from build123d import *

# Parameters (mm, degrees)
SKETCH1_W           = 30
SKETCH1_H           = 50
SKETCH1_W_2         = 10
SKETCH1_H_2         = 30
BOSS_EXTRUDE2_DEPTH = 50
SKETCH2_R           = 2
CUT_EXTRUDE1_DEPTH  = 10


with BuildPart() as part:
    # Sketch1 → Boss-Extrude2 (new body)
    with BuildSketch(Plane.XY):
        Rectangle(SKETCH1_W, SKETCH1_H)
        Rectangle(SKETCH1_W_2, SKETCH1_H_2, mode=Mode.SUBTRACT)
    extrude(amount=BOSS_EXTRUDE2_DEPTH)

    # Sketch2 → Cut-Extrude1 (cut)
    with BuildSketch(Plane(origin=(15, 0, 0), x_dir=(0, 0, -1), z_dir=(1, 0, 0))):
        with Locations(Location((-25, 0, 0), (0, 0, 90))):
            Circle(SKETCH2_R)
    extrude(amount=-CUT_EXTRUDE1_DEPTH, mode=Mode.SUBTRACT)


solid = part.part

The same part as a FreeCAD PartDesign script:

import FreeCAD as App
import Part
import Sketcher

V = App.Vector

doc = App.newDocument("Part")
params = doc.addObject("Spreadsheet::Sheet", "Params")
for row, (alias, value) in enumerate([
    ("sketch1_width", "30 mm"),
    ("sketch1_width2", "10 mm"),
    ("sketch1_height", "50 mm"),
    ("pad1_length", "50 mm"),
    ("sketch2_diameter", "4 mm"),
    ("pocket1_length", "10 mm"),
], start=1):
    params.set(f"A{row}", alias)
    params.set(f"B{row}", "=" + value)
    params.setAlias(f"B{row}", alias)

body = doc.addObject("PartDesign::Body", "Body")

# Sketch on XY plane
sketch1 = body.newObject("Sketcher::SketchObject", "Sketch")
sketch1.AttachmentSupport = (doc.getObject("XY_Plane"), [""])
sketch1.MapMode = "FlatFace"
sketch1.addGeometry(Part.LineSegment(V(-15, 25, 0), V(-15, -25, 0)), False)
sketch1.addGeometry(Part.LineSegment(V(-15, -25, 0), V(15, -25, 0)), False)
sketch1.addGeometry(Part.LineSegment(V(15, -25, 0), V(15, 25, 0)), False)
sketch1.addGeometry(Part.LineSegment(V(15, 25, 0), V(-15, 25, 0)), False)
sketch1.addGeometry(Part.LineSegment(V(5, -15, 0), V(-5, -15, 0)), False)
sketch1.addGeometry(Part.LineSegment(V(-5, -15, 0), V(-5, 15, 0)), False)
sketch1.addGeometry(Part.LineSegment(V(-5, 15, 0), V(5, 15, 0)), False)
sketch1.addGeometry(Part.LineSegment(V(5, 15, 0), V(5, -15, 0)), False)
sketch1.addConstraint(Sketcher.Constraint("Coincident", 0, 2, 1, 1))
sketch1.addConstraint(Sketcher.Constraint("Coincident", 1, 2, 2, 1))
sketch1.addConstraint(Sketcher.Constraint("Coincident", 2, 2, 3, 1))
sketch1.addConstraint(Sketcher.Constraint("Coincident", 3, 2, 0, 1))
sketch1.addConstraint(Sketcher.Constraint("Coincident", 4, 2, 5, 1))
sketch1.addConstraint(Sketcher.Constraint("Coincident", 5, 2, 6, 1))
sketch1.addConstraint(Sketcher.Constraint("Coincident", 6, 2, 7, 1))
sketch1.addConstraint(Sketcher.Constraint("Coincident", 7, 2, 4, 1))
sketch1.addConstraint(Sketcher.Constraint("Vertical", 0))
sketch1.addConstraint(Sketcher.Constraint("Horizontal", 1))
sketch1.addConstraint(Sketcher.Constraint("Vertical", 2))
sketch1.addConstraint(Sketcher.Constraint("Horizontal", 3))
sketch1.addConstraint(Sketcher.Constraint("Horizontal", 4))
sketch1.addConstraint(Sketcher.Constraint("Vertical", 5))
sketch1.addConstraint(Sketcher.Constraint("Horizontal", 6))
sketch1.addConstraint(Sketcher.Constraint("Vertical", 7))
sketch1.addConstraint(Sketcher.Constraint("Symmetric", 0, 2, 2, 2, -1, 1))
sketch1.addConstraint(Sketcher.Constraint("Symmetric", 4, 2, 6, 2, -1, 1))
sketch1.addConstraint(Sketcher.Constraint("Equal", 3, 5))
sketch1.addConstraint(Sketcher.Constraint("DistanceX", 1, 1, 1, 2, 30.0))
sketch1.addConstraint(Sketcher.Constraint("DistanceX", 4, 2, 4, 1, 10.0))
sketch1.addConstraint(Sketcher.Constraint("DistanceY", 0, 2, 0, 1, 50.0))
sketch1.setExpression("Constraints[19]", "Params.sketch1_width")
sketch1.setExpression("Constraints[20]", "Params.sketch1_width2")
sketch1.setExpression("Constraints[21]", "Params.sketch1_height")
pad1 = body.newObject("PartDesign::Pad", "Pad")
pad1.Profile = sketch1
pad1.setExpression("Length", "Params.pad1_length")

# Sketch on YZ plane
sketch2 = body.newObject("Sketcher::SketchObject", "Sketch001")
sketch2.AttachmentSupport = (doc.getObject("YZ_Plane"), [""])
sketch2.MapMode = "FlatFace"
sketch2.AttachmentOffset = App.Placement(V(0, 0, 15), App.Rotation())
sketch2.addGeometry(Part.Circle(V(0, 25, 0), V(0, 0, 1), 2), False)
sketch2.addConstraint(Sketcher.Constraint("PointOnObject", 0, 3, -2))
sketch2.addConstraint(Sketcher.Constraint("Diameter", 0, 4.0))
sketch2.addConstraint(Sketcher.Constraint("DistanceY", -1, 1, 0, 3, 25.0))
sketch2.setExpression("Constraints[1]", "Params.sketch2_diameter")
pocket1 = body.newObject("PartDesign::Pocket", "Pocket")
pocket1.Profile = sketch2
pocket1.setExpression("Length", "Params.pocket1_length")

doc.recompute()
